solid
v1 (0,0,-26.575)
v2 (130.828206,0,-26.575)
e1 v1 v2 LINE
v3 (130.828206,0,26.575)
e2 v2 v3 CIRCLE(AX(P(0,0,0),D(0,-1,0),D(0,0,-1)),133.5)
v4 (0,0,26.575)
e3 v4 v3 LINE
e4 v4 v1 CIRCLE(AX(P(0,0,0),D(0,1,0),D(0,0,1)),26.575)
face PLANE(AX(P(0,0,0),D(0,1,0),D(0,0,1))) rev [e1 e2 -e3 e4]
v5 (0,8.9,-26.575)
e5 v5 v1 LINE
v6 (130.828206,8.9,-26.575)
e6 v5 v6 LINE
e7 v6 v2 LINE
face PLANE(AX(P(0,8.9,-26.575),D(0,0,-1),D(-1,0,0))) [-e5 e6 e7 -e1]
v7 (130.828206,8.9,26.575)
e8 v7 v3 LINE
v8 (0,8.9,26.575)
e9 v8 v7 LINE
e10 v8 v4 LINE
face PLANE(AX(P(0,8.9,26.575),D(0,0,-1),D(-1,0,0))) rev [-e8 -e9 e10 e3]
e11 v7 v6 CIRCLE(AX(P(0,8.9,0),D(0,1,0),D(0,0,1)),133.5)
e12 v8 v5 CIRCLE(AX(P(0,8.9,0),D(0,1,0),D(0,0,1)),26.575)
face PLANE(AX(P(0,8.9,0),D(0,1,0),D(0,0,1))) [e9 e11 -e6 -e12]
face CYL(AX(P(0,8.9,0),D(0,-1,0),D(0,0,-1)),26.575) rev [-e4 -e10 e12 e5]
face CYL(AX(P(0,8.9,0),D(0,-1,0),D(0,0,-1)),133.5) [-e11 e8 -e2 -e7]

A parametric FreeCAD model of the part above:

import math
import FreeCAD as App
import Part
import Sketcher

V = App.Vector
Q = App.Units.Quantity

doc = App.newDocument("Part")
params = doc.addObject("Spreadsheet::Sheet", "Params")
for row, (alias, value) in enumerate([
    ("sketch1_radius", "133.5 mm"),
    ("pad1_length", "8.9 mm"),
], start=1):
    params.set(f"A{row}", alias)
    params.set(f"B{row}", "=" + value)
    params.setAlias(f"B{row}", alias)

body = doc.addObject("PartDesign::Body", "Body")

# Sketch on XZ plane
sketch1 = body.newObject("Sketcher::SketchObject", "Sketch")
sketch1.AttachmentSupport = (doc.getObject("XZ_Plane"), [""])
sketch1.MapMode = "FlatFace"
sketch1.addGeometry([
    Part.LineSegment(V(0, 27, 0), V(131, 27, 0)),  # 0
    Part.ArcOfCircle(Part.Circle(V(0, 0, 0), V(0, 0, 1), 133), math.radians(0), math.radians(11.48)),  # 1
    Part.ArcOfCircle(Part.Circle(V(0, 0, 0), V(0, 0, 1), 133), math.radians(-11.48), math.radians(0)),  # 2
    Part.LineSegment(V(131, -27, 0), V(0, -27, 0)),  # 3
    Part.ArcOfCircle(Part.Circle(V(0, 0, 0), V(0, 0, 1), 27), math.radians(-90), math.radians(90)),  # 4
], False)
sketch1.addConstraint([
    Sketcher.Constraint("Coincident", 0, 2, 1, 2),
    Sketcher.Constraint("Tangent", 1, 1, 2, 2),
    Sketcher.Constraint("Coincident", 2, 1, 3, 1),
    Sketcher.Constraint("Tangent", 3, 2, 4, 1),
    Sketcher.Constraint("Tangent", 4, 2, 0, 1),
    Sketcher.Constraint("Horizontal", 0),
    Sketcher.Constraint("Horizontal", 3),
    Sketcher.Constraint("Coincident", 1, 3, -1, 1),
    Sketcher.Constraint("Coincident", 4, 3, -1, 1),
    Sketcher.Constraint("Equal", 1, 2),
    Sketcher.Constraint("PointOnObject", 1, 1, -1),
    Sketcher.Constraint("Radius", 1, Q("133.5 mm")),
    Sketcher.Constraint("Radius", 4, Q("26.575 mm")),
])
sketch1.setExpression("Constraints[11]", "Params.sketch1_radius")
pad1 = body.newObject("PartDesign::Pad", "Pad")
pad1.Profile = sketch1
pad1.setExpression("Length", "Params.pad1_length")
pad1.Reversed = True

doc.recompute()
